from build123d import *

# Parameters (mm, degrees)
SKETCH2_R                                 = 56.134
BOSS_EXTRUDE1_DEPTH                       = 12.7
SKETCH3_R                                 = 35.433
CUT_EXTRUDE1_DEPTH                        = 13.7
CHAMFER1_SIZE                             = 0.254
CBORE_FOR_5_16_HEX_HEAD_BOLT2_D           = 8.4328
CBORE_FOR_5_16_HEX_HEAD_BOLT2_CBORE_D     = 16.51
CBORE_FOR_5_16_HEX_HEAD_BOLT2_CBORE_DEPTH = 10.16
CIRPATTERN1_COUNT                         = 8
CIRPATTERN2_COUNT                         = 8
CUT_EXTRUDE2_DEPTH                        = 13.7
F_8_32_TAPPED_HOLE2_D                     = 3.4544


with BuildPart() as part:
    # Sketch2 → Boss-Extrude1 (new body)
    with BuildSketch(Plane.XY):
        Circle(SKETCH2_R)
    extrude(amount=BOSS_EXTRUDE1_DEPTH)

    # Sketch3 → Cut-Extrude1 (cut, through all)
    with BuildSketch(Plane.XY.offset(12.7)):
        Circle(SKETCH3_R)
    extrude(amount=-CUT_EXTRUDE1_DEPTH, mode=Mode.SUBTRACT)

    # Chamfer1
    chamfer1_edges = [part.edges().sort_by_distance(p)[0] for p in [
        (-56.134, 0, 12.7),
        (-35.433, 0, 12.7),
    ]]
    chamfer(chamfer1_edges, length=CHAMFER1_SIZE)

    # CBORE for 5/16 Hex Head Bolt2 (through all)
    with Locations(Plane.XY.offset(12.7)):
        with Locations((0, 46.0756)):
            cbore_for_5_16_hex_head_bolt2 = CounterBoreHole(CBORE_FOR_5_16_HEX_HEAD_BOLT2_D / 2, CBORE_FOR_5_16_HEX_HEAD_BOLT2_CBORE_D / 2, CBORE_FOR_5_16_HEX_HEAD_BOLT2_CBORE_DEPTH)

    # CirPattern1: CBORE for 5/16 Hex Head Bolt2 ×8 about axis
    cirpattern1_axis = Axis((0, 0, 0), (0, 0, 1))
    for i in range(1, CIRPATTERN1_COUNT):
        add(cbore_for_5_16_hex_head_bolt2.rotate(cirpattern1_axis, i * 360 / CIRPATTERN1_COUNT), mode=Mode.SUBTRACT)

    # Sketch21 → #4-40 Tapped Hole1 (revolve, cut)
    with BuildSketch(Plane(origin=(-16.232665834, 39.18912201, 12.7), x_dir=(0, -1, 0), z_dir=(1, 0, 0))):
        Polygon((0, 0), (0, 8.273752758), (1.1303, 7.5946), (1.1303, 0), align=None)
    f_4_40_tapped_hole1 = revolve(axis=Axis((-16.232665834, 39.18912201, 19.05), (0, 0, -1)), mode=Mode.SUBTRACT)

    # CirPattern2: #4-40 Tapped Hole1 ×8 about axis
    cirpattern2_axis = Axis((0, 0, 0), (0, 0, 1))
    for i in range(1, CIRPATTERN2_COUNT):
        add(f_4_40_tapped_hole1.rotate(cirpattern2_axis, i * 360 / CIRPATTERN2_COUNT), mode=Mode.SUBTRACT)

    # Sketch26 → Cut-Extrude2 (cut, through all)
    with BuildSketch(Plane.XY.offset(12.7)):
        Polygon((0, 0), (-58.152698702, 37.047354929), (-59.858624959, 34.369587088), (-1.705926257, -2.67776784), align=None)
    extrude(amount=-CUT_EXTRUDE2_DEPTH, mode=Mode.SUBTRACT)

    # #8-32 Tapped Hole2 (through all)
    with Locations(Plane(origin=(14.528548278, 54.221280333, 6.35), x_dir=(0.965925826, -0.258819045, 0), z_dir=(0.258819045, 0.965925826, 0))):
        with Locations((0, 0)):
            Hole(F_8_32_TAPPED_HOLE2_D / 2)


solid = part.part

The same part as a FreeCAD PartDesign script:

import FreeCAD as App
import Part
import Sketcher
from FreeCAD import Vector
Q = App.Units.Quantity


def edges_at(feature, points):
    """Names of the edges that pass closest to the given points."""
    edges = feature.Shape.Edges
    near = lambda p: min(range(len(edges)), key=lambda i: edges[i].distToShape(Part.Vertex(*p))[0])
    return sorted({f"Edge{near(p) + 1}" for p in points})


def add_polygon(sketch, points):
    """Adds a closed chain of lines whose ends are joined by coincident constraints."""
    first, n = sketch.GeometryCount, len(points)
    for a, b in zip(points, points[1:] + points[:1]):
        sketch.addGeometry(Part.LineSegment(App.Vector(*a, 0), App.Vector(*b, 0)), False)
    for i in range(n):
        sketch.addConstraint(Sketcher.Constraint("Coincident", first + i, 2, first + (i + 1) % n, 1))

doc = App.newDocument("Part")
body = doc.addObject("PartDesign::Body", "Body")

# Sketch on XY plane
sketch1 = body.newObject("Sketcher::SketchObject", "Sketch")
sketch1.AttachmentSupport = (doc.getObject("XY_Plane"), [""])
sketch1.MapMode = "FlatFace"
sketch1.addGeometry(Part.Circle(Vector(0, 0, 0), Vector(0, 0, 1), 56), False)
sketch1.addConstraint([
    Sketcher.Constraint("Coincident", 0, 3, -1, 1),
    Sketcher.Constraint("Diameter", 0, Q("4.42 in")),
])
pad1 = body.newObject("PartDesign::Pad", "Pad")
pad1.Profile = sketch1
pad1.Length = Q("0.5 in")

# Sketch on XY plane
sketch2 = body.newObject("Sketcher::SketchObject", "Sketch001")
sketch2.AttachmentSupport = (doc.getObject("XY_Plane"), [""])
sketch2.MapMode = "FlatFace"
sketch2.AttachmentOffset = App.Placement(Vector(0, 0, 0.5 * 25.4), App.Rotation())
sketch2.addGeometry(Part.Circle(Vector(0, 0, 0), Vector(0, 0, 1), 35), False)
sketch2.addConstraint([
    Sketcher.Constraint("Coincident", 0, 3, -1, 1),
    Sketcher.Constraint("Diameter", 0, Q("2.79 in")),
])
pocket1 = body.newObject("PartDesign::Pocket", "Pocket")
pocket1.Profile = sketch2
pocket1.Type = "ThroughAll"
doc.recompute()

chamfer = body.newObject("PartDesign::Chamfer", "Chamfer")
chamfer.Base = (pocket1, edges_at(pocket1, [(-56.134, 0, 12.7), (-35.433, 0, 12.7)]))
chamfer.Size = Q("0.01 in")

# Sketch on XY plane
sketch3 = body.newObject("Sketcher::SketchObject", "Sketch002")
sketch3.AttachmentSupport = (doc.getObject("XY_Plane"), [""])
sketch3.MapMode = "FlatFace"
sketch3.AttachmentOffset = App.Placement(Vector(0, 0, 0.5 * 25.4), App.Rotation())
sketch3.addGeometry(Part.Circle(Vector(0, 46.1, 0), Vector(0, 0, 1), 4.2), False)
sketch3.addConstraint([
    Sketcher.Constraint("PointOnObject", 0, 3, -2),
    Sketcher.Constraint("Diameter", 0, Q("0.332 in")),
    Sketcher.Constraint("DistanceY", -1, 1, 0, 3, Q("1.814 in")),
])
doc.recompute()
hole = body.newObject("PartDesign::Hole", "Hole")
hole.Profile = sketch3
hole.ThreadType = "None"
hole.Diameter = Q("0.332 in")
hole.DepthType = "ThroughAll"
hole.HoleCutType = "Counterbore"
hole.HoleCutDiameter = Q("0.65 in")
hole.HoleCutDepth = Q("0.4 in")
doc.recompute()

polarpattern = body.newObject("PartDesign::PolarPattern", "PolarPattern")
polarpattern.Originals = [hole]
polarpattern.Axis = (doc.getObject("Z_Axis"), [""])
polarpattern.Angle = 360
polarpattern.Occurrences = 8
body.Tip = polarpattern

# Sketch on YZ plane
sketch4 = body.newObject("Sketcher::SketchObject", "Sketch003")
sketch4.AttachmentSupport = (doc.getObject("YZ_Plane"), [""])
sketch4.MapMode = "FlatFace"
sketch4.AttachmentOffset = App.Placement(Vector(0, 0, -16.232666), App.Rotation())
add_polygon(sketch4, [(39.2, 4.4), (39.2, 12.7), (38.1, 12.7), (38.1, 5.1)])  # lines 0-3
sketch4.addGeometry(Part.LineSegment(Vector(39.2, 12.7, 0), Vector(39.2, 4.4, 0)), True)  # axis
sketch4.addConstraint([
    Sketcher.Constraint("Vertical", 0),
    Sketcher.Constraint("Horizontal", 1),
    Sketcher.Constraint("Vertical", 2),
    Sketcher.Constraint("Vertical", 4),
    Sketcher.Constraint("Coincident", 4, 1, 0, 2),
    Sketcher.Constraint("Equal", 0, 4),
    Sketcher.Constraint("Angle", 3, Q("-31 deg")),
    Sketcher.Constraint("DistanceY", -1, 1, 0, 2, Q("0.5 in")),
    Sketcher.Constraint("DistanceY", 2, 2, 2, 1, Q("0.299 in")),
    Sketcher.Constraint("DistanceX", 1, 2, 1, 1, Q("0.0445 in")),
    Sketcher.Constraint("DistanceX", -1, 1, 0, 2, 39.189122),
])
groove = body.newObject("PartDesign::Groove", "Groove")
groove.Profile = sketch4
groove.ReferenceAxis = (sketch4, ["Axis0"])
groove.Angle = 360
doc.recompute()

polarpattern2 = body.newObject("PartDesign::PolarPattern", "PolarPattern001")
polarpattern2.Originals = [groove]
polarpattern2.Axis = (doc.getObject("Z_Axis"), [""])
polarpattern2.Angle = 360
polarpattern2.Occurrences = 8
body.Tip = polarpattern2

# Sketch on XY plane
sketch5 = body.newObject("Sketcher::SketchObject", "Sketch004")
sketch5.AttachmentSupport = (doc.getObject("XY_Plane"), [""])
sketch5.MapMode = "FlatFace"
sketch5.AttachmentOffset = App.Placement(Vector(0, 0, 0.5 * 25.4), App.Rotation())
add_polygon(sketch5, [(0, 0), (-58.2, 37), (-59.9, 34.4), (-1.7, -2.7)])  # lines 0-3
sketch5.addConstraint([
    Sketcher.Constraint("Coincident", 3, 2, -1, 1),
    Sketcher.Constraint("Perpendicular", 0, 1),
    Sketcher.Constraint("Perpendicular", 1, 2),
    Sketcher.Constraint("Perpendicular", 2, 3),
    Sketcher.Constraint("Angle", 0, Q("147.5 deg")),
    Sketcher.Constraint("Distance", 1, Q("0.125 in")),
    Sketcher.Constraint("DistanceX", 0, 2, -1, 1, 58.152699),
])
pocket2 = body.newObject("PartDesign::Pocket", "Pocket001")
pocket2.Profile = sketch5
pocket2.Type = "ThroughAll"

# Sketch on an angled plane
sketch6 = body.newObject("Sketcher::SketchObject", "Sketch005")
sketch6.Placement = App.Placement(Vector(14.528548, 54.22128, 0), App.Rotation(Vector(0.965925826, -0.258819045, 0), Vector(0, 0, -0.999999999), Vector(0.258819045, 0.965925826, 0), "ZXY"))
sketch6.addGeometry(Part.Circle(Vector(0, -6.3, 0), Vector(0, 0, 1), 1.7), False)
sketch6.addConstraint([
    Sketcher.Constraint("PointOnObject", 0, 3, -2),
    Sketcher.Constraint("Diameter", 0, Q("0.136 in")),
    Sketcher.Constraint("DistanceY", 0, 3, -1, 1, Q("0.25 in")),
])
doc.recompute()
hole2 = body.newObject("PartDesign::Hole", "Hole001")
hole2.Profile = sketch6
hole2.ThreadType = "None"
hole2.Diameter = Q("0.136 in")
hole2.DepthType = "ThroughAll"

doc.recompute()
